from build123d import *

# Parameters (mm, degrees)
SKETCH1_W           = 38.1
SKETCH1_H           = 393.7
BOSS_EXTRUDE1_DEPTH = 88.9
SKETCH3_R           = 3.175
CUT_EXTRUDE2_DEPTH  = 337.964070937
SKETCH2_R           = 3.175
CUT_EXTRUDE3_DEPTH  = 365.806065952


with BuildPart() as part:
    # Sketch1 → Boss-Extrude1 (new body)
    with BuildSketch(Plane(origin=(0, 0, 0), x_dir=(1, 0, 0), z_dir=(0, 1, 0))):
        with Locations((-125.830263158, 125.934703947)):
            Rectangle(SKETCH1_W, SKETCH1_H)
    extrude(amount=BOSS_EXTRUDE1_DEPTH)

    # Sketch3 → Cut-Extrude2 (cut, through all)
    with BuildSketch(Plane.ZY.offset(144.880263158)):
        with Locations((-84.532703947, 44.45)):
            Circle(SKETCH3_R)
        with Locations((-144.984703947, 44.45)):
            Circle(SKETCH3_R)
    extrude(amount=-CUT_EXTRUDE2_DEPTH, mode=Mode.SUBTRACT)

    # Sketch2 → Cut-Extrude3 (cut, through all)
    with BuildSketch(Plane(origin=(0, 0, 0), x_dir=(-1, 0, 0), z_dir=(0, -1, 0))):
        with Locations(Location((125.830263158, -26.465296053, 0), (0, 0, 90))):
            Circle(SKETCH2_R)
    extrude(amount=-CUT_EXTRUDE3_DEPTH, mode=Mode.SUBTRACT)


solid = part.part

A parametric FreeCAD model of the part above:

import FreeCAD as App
import Part
import Sketcher

V = App.Vector
Q = App.Units.Quantity


def add_polygon(sketch, points):
    """Adds a closed chain of lines whose ends are joined by coincident constraints."""
    first, n = sketch.GeometryCount, len(points)
    for a, b in zip(points, points[1:] + points[:1]):
        sketch.addGeometry(Part.LineSegment(App.Vector(*a, 0), App.Vector(*b, 0)), False)
    for i in range(n):
        sketch.addConstraint(Sketcher.Constraint("Coincident", first + i, 2, first + (i + 1) % n, 1))

doc = App.newDocument("Part")
params = doc.addObject("Spreadsheet::Sheet", "Params")
for row, (alias, value) in enumerate([
    ("sketch1_width", "1.5 in"),
    ("sketch1_height", "15.5 in"),
    ("pad1_length", "3.5 in"),
    ("sketch2_diameter", "0.25 in"),
    ("sketch3_diameter", "0.25 in"),
], start=1):
    params.set(f"A{row}", alias)
    params.set(f"B{row}", "=" + value)
    params.setAlias(f"B{row}", alias)

body = doc.addObject("PartDesign::Body", "Body")

sketch1 = body.newObject("Sketcher::SketchObject", "Sketch")
sketch1.AttachmentSupport = (doc.getObject("XZ_Plane"), [""])
sketch1.MapMode = "FlatFace"
add_polygon(sketch1, [(-144.880263, -322.784704), (-144.880263, 70.915296), (-106.780263, 70.915296), (-106.780263, -322.784704)])
sketch1.addConstraint([
    Sketcher.Constraint("Vertical", 0),
    Sketcher.Constraint("Horizontal", 1),
    Sketcher.Constraint("Vertical", 2),
    Sketcher.Constraint("Horizontal", 3),
    Sketcher.Constraint("DistanceX", 1, 1, 1, 2, Q("1.5 in")),
    Sketcher.Constraint("DistanceY", 0, 1, 0, 2, Q("15.5 in")),
    Sketcher.Constraint("DistanceX", 0, 2, -1, 1, 144.880263),
    Sketcher.Constraint("DistanceY", -1, 1, 0, 2, 70.915296),
])
sketch1.setExpression("Constraints[8]", "Params.sketch1_width")
sketch1.setExpression("Constraints[9]", "Params.sketch1_height")
pad1 = body.newObject("PartDesign::Pad", "Pad")
pad1.Profile = sketch1
pad1.setExpression("Length", "Params.pad1_length")
pad1.Reversed = True

sketch2 = body.newObject("Sketcher::SketchObject", "Sketch001")
sketch2.AttachmentSupport = (doc.getObject("YZ_Plane"), [""])
sketch2.MapMode = "FlatFace"
sketch2.AttachmentOffset = App.Placement(V(0, 0, -144.880263), App.Rotation())
sketch2.addGeometry([
    Part.Circle(V(44.45, -84.532704, 0), V(0, 0, 1), 3.175),
    Part.Circle(V(44.45, -144.984704, 0), V(0, 0, 1), 3.175),
], False)
sketch2.addConstraint([
    Sketcher.Constraint("Equal", 0, 1),
    Sketcher.Constraint("Vertical", 0, 3, 1, 3),
    Sketcher.Constraint("Diameter", 0, Q("0.25 in")),
    Sketcher.Constraint("DistanceX", -1, 1, 0, 3, Q("1.75 in")),
    Sketcher.Constraint("DistanceY", 1, 3, 0, 3, Q("2.38 in")),
    Sketcher.Constraint("DistanceY", 0, 3, -1, 1, 84.532704),
])
sketch2.setExpression("Constraints[2]", "Params.sketch2_diameter")
pocket1 = body.newObject("PartDesign::Pocket", "Pocket")
pocket1.Profile = sketch2
pocket1.Type = "ThroughAll"
pocket1.Reversed = True

sketch3 = body.newObject("Sketcher::SketchObject", "Sketch002")
sketch3.AttachmentSupport = (doc.getObject("XZ_Plane"), [""])
sketch3.MapMode = "FlatFace"
sketch3.addGeometry(Part.Circle(V(-125.830263, 26.465296, 0), V(0, 0, 1), 3.175), False)
sketch3.addConstraint([
    Sketcher.Constraint("Diameter", 0, Q("0.25 in")),
    Sketcher.Constraint("DistanceX", 0, 3, -1, 1, 125.830263),
    Sketcher.Constraint("DistanceY", -1, 1, 0, 3, 26.465296),
])
sketch3.setExpression("Constraints[0]", "Params.sketch3_diameter")
pocket2 = body.newObject("PartDesign::Pocket", "Pocket001")
pocket2.Profile = sketch3
pocket2.Type = "ThroughAll"

doc.recompute()
